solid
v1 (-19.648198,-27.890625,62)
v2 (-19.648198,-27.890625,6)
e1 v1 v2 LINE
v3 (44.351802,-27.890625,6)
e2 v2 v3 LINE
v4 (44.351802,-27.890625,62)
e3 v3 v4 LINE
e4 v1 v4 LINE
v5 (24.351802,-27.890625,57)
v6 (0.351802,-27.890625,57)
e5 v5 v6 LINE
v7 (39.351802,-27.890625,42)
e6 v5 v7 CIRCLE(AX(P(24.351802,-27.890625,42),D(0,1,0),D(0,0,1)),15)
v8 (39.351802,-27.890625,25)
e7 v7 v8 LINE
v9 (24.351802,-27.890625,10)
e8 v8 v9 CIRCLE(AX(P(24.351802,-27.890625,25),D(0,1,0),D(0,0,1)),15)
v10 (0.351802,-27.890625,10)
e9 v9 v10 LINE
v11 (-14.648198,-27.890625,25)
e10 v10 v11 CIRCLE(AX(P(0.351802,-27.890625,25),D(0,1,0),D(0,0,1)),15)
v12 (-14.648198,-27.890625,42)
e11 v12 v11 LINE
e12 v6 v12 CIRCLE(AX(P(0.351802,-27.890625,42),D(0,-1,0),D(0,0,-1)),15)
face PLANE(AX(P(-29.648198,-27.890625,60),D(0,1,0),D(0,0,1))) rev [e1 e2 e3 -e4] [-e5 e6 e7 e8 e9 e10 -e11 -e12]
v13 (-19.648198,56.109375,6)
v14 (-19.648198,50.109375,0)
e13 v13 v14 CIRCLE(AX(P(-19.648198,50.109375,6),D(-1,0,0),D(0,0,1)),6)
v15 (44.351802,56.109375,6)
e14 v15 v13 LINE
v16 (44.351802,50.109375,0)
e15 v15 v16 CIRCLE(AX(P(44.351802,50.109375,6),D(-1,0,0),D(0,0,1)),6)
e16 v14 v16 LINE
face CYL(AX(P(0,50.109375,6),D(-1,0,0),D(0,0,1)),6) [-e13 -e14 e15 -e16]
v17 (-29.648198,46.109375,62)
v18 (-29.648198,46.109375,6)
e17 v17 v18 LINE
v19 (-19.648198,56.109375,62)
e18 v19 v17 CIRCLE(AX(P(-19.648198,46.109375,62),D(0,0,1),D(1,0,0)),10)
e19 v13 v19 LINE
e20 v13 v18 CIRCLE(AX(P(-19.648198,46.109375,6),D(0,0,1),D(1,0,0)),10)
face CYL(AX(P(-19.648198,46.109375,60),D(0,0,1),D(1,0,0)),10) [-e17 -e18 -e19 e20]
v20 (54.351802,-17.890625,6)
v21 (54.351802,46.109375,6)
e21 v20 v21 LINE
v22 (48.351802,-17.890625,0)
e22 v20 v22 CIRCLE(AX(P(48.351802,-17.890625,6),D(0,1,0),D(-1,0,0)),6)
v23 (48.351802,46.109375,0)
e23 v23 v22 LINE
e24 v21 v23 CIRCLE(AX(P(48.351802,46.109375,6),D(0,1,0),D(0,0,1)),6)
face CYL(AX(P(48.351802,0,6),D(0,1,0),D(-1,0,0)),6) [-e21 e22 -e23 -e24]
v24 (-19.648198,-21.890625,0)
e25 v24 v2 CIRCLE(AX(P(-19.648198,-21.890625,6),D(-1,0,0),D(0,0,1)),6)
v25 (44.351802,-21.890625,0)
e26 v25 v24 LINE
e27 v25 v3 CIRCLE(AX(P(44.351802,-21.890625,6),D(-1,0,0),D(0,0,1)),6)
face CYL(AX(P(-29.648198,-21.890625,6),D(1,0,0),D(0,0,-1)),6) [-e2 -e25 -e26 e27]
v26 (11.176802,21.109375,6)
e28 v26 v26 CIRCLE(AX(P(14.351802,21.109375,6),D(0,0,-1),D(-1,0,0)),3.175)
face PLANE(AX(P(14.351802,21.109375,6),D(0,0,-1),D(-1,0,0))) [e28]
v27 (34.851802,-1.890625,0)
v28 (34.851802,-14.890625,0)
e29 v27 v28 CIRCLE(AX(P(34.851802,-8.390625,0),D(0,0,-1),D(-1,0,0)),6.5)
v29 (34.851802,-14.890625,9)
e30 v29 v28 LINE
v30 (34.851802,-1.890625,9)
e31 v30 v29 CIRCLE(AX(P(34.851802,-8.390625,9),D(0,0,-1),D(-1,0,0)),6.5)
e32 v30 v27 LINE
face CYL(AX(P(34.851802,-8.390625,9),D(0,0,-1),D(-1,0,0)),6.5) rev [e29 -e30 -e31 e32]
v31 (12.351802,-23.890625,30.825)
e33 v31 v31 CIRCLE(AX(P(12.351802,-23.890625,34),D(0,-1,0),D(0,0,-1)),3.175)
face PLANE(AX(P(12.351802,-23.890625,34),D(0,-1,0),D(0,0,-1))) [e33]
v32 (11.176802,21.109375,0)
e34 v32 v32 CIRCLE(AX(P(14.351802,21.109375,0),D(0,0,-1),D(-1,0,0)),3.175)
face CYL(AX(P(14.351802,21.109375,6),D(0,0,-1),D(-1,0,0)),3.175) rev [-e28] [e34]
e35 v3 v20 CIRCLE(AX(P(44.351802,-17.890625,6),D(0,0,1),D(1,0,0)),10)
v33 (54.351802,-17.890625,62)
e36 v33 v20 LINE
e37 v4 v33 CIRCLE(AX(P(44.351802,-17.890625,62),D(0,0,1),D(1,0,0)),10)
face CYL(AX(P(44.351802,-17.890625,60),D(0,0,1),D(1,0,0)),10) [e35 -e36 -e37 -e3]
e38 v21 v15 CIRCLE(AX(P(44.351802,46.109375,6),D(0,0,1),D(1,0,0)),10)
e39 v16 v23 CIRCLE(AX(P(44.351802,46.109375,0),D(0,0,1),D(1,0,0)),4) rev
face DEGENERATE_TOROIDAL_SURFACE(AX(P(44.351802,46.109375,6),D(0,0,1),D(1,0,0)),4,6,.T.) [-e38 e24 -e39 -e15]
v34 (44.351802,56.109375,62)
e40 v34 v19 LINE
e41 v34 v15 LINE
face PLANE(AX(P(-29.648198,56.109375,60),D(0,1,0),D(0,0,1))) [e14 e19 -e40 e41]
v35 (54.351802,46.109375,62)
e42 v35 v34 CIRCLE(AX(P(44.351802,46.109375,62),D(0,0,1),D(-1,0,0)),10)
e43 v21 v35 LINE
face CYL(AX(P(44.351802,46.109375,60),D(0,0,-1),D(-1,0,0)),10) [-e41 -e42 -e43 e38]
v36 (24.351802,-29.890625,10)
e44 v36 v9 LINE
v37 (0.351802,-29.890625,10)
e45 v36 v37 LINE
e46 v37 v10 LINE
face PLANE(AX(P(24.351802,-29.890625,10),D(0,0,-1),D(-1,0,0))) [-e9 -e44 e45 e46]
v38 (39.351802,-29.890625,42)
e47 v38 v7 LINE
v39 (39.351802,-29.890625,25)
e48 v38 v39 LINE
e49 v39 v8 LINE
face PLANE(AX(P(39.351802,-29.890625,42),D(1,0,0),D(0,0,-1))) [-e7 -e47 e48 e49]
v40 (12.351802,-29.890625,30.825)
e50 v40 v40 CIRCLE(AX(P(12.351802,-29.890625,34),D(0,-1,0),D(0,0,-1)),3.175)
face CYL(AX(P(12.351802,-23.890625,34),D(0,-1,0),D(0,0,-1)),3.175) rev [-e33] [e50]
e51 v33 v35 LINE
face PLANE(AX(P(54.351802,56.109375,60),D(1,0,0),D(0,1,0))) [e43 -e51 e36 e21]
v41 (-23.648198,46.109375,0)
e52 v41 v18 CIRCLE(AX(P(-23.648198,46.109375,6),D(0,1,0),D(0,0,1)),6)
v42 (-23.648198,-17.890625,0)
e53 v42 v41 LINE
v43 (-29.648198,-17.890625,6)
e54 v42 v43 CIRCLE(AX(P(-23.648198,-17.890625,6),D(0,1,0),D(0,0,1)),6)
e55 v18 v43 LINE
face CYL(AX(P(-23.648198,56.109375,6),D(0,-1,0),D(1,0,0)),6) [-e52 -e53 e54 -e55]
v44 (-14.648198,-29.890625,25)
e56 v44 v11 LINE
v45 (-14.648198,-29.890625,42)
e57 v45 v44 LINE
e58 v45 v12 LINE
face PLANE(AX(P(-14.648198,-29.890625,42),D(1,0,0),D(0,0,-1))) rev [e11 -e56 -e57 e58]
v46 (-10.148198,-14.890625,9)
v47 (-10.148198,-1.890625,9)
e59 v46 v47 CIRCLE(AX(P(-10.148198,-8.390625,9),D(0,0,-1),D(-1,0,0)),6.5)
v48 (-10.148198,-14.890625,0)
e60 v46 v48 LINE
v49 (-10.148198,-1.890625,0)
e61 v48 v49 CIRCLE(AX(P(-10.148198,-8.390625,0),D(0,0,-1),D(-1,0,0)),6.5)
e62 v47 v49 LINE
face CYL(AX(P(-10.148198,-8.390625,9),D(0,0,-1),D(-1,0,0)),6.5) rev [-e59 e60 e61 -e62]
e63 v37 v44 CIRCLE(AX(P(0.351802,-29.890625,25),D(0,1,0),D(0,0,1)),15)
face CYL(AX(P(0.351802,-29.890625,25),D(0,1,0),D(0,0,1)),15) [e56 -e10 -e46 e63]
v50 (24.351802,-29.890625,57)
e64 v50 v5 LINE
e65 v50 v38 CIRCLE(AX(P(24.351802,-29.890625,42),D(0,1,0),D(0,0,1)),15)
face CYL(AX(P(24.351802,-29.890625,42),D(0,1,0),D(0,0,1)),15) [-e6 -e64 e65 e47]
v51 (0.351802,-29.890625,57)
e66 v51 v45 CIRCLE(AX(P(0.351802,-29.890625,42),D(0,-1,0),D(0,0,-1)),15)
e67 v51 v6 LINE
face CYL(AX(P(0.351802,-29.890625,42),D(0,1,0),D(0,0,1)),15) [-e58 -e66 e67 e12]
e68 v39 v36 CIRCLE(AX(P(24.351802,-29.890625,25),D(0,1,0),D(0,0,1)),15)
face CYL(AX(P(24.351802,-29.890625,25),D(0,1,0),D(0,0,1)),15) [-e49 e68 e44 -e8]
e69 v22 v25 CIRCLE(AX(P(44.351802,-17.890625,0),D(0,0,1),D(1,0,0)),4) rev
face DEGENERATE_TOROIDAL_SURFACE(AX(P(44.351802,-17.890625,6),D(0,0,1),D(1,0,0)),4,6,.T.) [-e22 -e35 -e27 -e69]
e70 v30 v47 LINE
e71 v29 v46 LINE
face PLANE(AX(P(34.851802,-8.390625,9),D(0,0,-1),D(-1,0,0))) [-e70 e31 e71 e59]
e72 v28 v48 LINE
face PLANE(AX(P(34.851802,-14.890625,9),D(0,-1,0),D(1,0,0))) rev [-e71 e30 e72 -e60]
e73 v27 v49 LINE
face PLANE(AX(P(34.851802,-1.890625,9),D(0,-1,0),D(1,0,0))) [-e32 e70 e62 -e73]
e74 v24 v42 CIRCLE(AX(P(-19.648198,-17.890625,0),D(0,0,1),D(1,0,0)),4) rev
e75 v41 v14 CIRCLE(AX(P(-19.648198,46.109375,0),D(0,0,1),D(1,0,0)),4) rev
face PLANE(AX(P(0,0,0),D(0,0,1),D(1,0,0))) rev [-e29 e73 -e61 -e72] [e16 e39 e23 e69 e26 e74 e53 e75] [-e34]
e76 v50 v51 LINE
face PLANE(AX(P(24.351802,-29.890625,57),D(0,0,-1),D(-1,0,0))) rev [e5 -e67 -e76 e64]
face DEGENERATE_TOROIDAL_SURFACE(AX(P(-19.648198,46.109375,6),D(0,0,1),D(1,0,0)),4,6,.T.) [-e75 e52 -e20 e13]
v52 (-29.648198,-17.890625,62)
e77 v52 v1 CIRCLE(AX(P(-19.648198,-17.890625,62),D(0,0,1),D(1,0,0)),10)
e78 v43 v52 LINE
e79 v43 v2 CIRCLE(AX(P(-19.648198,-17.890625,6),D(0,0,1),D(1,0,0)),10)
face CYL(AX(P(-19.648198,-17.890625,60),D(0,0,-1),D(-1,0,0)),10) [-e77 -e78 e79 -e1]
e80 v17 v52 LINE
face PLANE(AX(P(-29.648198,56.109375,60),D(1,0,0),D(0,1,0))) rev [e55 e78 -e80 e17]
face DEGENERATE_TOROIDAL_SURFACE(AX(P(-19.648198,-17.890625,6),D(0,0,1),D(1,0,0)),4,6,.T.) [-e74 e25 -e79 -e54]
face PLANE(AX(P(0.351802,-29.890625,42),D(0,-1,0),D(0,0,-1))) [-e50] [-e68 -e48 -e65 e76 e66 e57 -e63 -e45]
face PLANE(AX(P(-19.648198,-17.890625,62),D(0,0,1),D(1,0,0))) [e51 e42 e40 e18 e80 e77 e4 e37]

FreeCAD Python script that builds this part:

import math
import FreeCAD as App
import Part
import Sketcher
from FreeCAD import Vector
Q = App.Units.Quantity


def edges_at(feature, points):
    """Names of the edges that pass closest to the given points."""
    edges = feature.Shape.Edges
    near = lambda p: min(range(len(edges)), key=lambda i: edges[i].distToShape(Part.Vertex(*p))[0])
    return sorted({f"Edge{near(p) + 1}" for p in points})

doc = App.newDocument("Part")
params = doc.addObject("Spreadsheet::Sheet", "Params")
for row, (alias, value) in enumerate([
    ("sketch1_width", "84 mm"),
    ("pad1_length", "60 mm"),
    ("fillet_radius", "10 mm"),
    ("fillet2_radius", "6 mm"),
    ("sketch2_radius", "15 mm"),
    ("sketch2_width", "24 mm"),
    ("sketch2_height", "17 mm"),
    ("pad2_length", "2 mm"),
    ("sketch3_diameter", "6.35 mm"),
    ("pocket1_length", "6 mm"),
    ("sketch4_radius", "6.5 mm"),
    ("sketch4_width", "45 mm"),
    ("pocket2_length", "9 mm"),
    ("sketch5_diameter", "6.35 mm"),
    ("pocket3_length", "6 mm"),
    ("sketch6_radius", "10 mm"),
    ("sketch6_width", "64 mm"),
    ("pad3_length", "2 mm"),
], start=1):
    params.set(f"A{row}", alias)
    params.set(f"B{row}", "=" + value)
    params.setAlias(f"B{row}", alias)

body = doc.addObject("PartDesign::Body", "Body")

# Sketch on XY plane
sketch1 = body.newObject("Sketcher::SketchObject", "Sketch")
sketch1.AttachmentSupport = (doc.getObject("XY_Plane"), [""])
sketch1.MapMode = "FlatFace"
sketch1.addGeometry([
    Part.LineSegment(Vector(-30, 56, 0), Vector(-30, -28, 0)),
    Part.LineSegment(Vector(-30, -28, 0), Vector(54, -28, 0)),
    Part.LineSegment(Vector(54, -28, 0), Vector(54, 56, 0)),
    Part.LineSegment(Vector(54, 56, 0), Vector(-30, 56, 0)),
], False)
sketch1.addConstraint([
    Sketcher.Constraint("Coincident", 0, 2, 1, 1),
    Sketcher.Constraint("Coincident", 1, 2, 2, 1),
    Sketcher.Constraint("Coincident", 2, 2, 3, 1),
    Sketcher.Constraint("Coincident", 3, 2, 0, 1),
    Sketcher.Constraint("Vertical", 0),
    Sketcher.Constraint("Horizontal", 1),
    Sketcher.Constraint("Vertical", 2),
    Sketcher.Constraint("Horizontal", 3),
    Sketcher.Constraint("Equal", 3, 0),
    Sketcher.Constraint("DistanceX", 1, 1, 1, 2, Q("84 mm")),
    Sketcher.Constraint("DistanceX", 0, 2, -1, 1, Q("29.648198 mm")),
    Sketcher.Constraint("DistanceY", 0, 2, -1, 1, Q("27.890625 mm")),
])
sketch1.setExpression("Constraints[9]", "Params.sketch1_width")
pad1 = body.newObject("PartDesign::Pad", "Pad")
pad1.Profile = sketch1
pad1.setExpression("Length", "Params.pad1_length")
doc.recompute()

fillet = body.newObject("PartDesign::Fillet", "Fillet")
fillet.Base = (pad1, edges_at(pad1, [
    (-29.648, 56.109, 30),
    (54.352, 56.109, 30),
    (54.352, -27.891, 30),
    (-29.648, -27.891, 30),
]))
fillet.setExpression("Radius", "Params.fillet_radius")
doc.recompute()

fillet2 = body.newObject("PartDesign::Fillet", "Fillet001")
fillet2.Base = (fillet, edges_at(fillet, [
    (12.352, -27.891, 0),
    (-29.648, 14.109, 0),
    (12.352, 56.109, 0),
    (54.352, 14.109, 0),
    (51.423, 53.18, 0),
    (-26.719, 53.18, 0),
    (51.423, -24.962, 0),
    (-26.719, -24.962, 0),
]))
fillet2.setExpression("Radius", "Params.fillet2_radius")

# Sketch on XZ plane
sketch2 = body.newObject("Sketcher::SketchObject", "Sketch001")
sketch2.AttachmentSupport = (doc.getObject("XZ_Plane"), [""])
sketch2.MapMode = "FlatFace"
sketch2.AttachmentOffset = App.Placement(Vector(0, 0, 27.890625), App.Rotation())
sketch2.addGeometry([
    Part.LineSegment(Vector(24, 57, 0), Vector(0, 57, 0)),  # 0
    Part.ArcOfCircle(Part.Circle(Vector(0, 42, 0), Vector(0, 0, 1), 15), math.radians(90), math.radians(180)),  # 1
    Part.LineSegment(Vector(-15, 42, 0), Vector(-15, 25, 0)),  # 2
    Part.ArcOfCircle(Part.Circle(Vector(0, 25, 0), Vector(0, 0, 1), 15), math.radians(180), math.radians(270)),  # 3
    Part.LineSegment(Vector(0, 10, 0), Vector(24, 10, 0)),  # 4
    Part.ArcOfCircle(Part.Circle(Vector(24, 25, 0), Vector(0, 0, 1), 15), math.radians(-90), math.radians(0)),  # 5
    Part.LineSegment(Vector(39, 25, 0), Vector(39, 42, 0)),  # 6
    Part.ArcOfCircle(Part.Circle(Vector(24, 42, 0), Vector(0, 0, 1), 15), math.radians(0), math.radians(90)),  # 7
], False)
sketch2.addConstraint([
    Sketcher.Constraint("Tangent", 0, 2, 1, 1),
    Sketcher.Constraint("Tangent", 1, 2, 2, 1),
    Sketcher.Constraint("Tangent", 2, 2, 3, 1),
    Sketcher.Constraint("Tangent", 3, 2, 4, 1),
    Sketcher.Constraint("Tangent", 4, 2, 5, 1),
    Sketcher.Constraint("Tangent", 5, 2, 6, 1),
    Sketcher.Constraint("Tangent", 6, 2, 7, 1),
    Sketcher.Constraint("Tangent", 7, 2, 0, 1),
    Sketcher.Constraint("Horizontal", 0),
    Sketcher.Constraint("Vertical", 2),
    Sketcher.Constraint("Horizontal", 4),
    Sketcher.Constraint("Vertical", 6),
    Sketcher.Constraint("Equal", 1, 3),
    Sketcher.Constraint("Equal", 3, 5),
    Sketcher.Constraint("Equal", 5, 7),
    Sketcher.Constraint("Radius", 1, Q("15 mm")),
    Sketcher.Constraint("DistanceX", 0, 2, 0, 1, Q("24 mm")),
    Sketcher.Constraint("DistanceY", 2, 2, 2, 1, Q("17 mm")),
    Sketcher.Constraint("DistanceY", -1, 1, 1, 3, Q("42 mm")),
    Sketcher.Constraint("DistanceX", -1, 1, 1, 3, Q("0.351802 mm")),
])
sketch2.setExpression("Constraints[15]", "Params.sketch2_radius")
sketch2.setExpression("Constraints[16]", "Params.sketch2_width")
sketch2.setExpression("Constraints[17]", "Params.sketch2_height")
pad2 = body.newObject("PartDesign::Pad", "Pad001")
pad2.Profile = sketch2
pad2.setExpression("Length", "Params.pad2_length")

# Sketch on XZ plane
sketch3 = body.newObject("Sketcher::SketchObject", "Sketch002")
sketch3.AttachmentSupport = (doc.getObject("XZ_Plane"), [""])
sketch3.MapMode = "FlatFace"
sketch3.AttachmentOffset = App.Placement(Vector(0, 0, 29.890625), App.Rotation())
sketch3.addGeometry(Part.Circle(Vector(12.4, 34, 0), Vector(0, 0, 1), 3.2), False)
sketch3.addConstraint([
    Sketcher.Constraint("Diameter", 0, Q("6.35 mm")),
    Sketcher.Constraint("DistanceY", -1, 1, 0, 3, Q("34 mm")),
    Sketcher.Constraint("DistanceX", -1, 1, 0, 3, Q("12.351802 mm")),
])
sketch3.setExpression("Constraints[0]", "Params.sketch3_diameter")
pocket1 = body.newObject("PartDesign::Pocket", "Pocket")
pocket1.Profile = sketch3
pocket1.setExpression("Length", "Params.pocket1_length")

# Sketch on XY plane
sketch4 = body.newObject("Sketcher::SketchObject", "Sketch003")
sketch4.AttachmentSupport = (doc.getObject("XY_Plane"), [""])
sketch4.MapMode = "FlatFace"
sketch4.addGeometry([
    Part.LineSegment(Vector(-10, -2, 0), Vector(35, -2, 0)),
    Part.ArcOfCircle(Part.Circle(Vector(35, -8, 0), Vector(0, 0, 1), 6), math.radians(-90), math.radians(90)),
    Part.LineSegment(Vector(35, -15, 0), Vector(-10, -15, 0)),
    Part.ArcOfCircle(Part.Circle(Vector(-10, -8, 0), Vector(0, 0, 1), 6), math.radians(90), math.radians(270)),
], False)
sketch4.addConstraint([
    Sketcher.Constraint("Tangent", 0, 2, 1, 2),
    Sketcher.Constraint("Tangent", 1, 1, 2, 1),
    Sketcher.Constraint("Tangent", 2, 2, 3, 2),
    Sketcher.Constraint("Tangent", 3, 1, 0, 1),
    Sketcher.Constraint("Horizontal", 0),
    Sketcher.Constraint("Horizontal", 2),
    Sketcher.Constraint("Radius", 1, Q("6.5 mm")),
    Sketcher.Constraint("DistanceX", 0, 1, 0, 2, Q("45 mm")),
    Sketcher.Constraint("DistanceX", -1, 1, 1, 3, Q("34.851802 mm")),
    Sketcher.Constraint("DistanceY", 1, 3, -1, 1, Q("8.390625 mm")),
])
sketch4.setExpression("Constraints[6]", "Params.sketch4_radius")
sketch4.setExpression("Constraints[7]", "Params.sketch4_width")
pocket2 = body.newObject("PartDesign::Pocket", "Pocket001")
pocket2.Profile = sketch4
pocket2.setExpression("Length", "Params.pocket2_length")
pocket2.Reversed = True

# Sketch on XY plane
sketch5 = body.newObject("Sketcher::SketchObject", "Sketch004")
sketch5.AttachmentSupport = (doc.getObject("XY_Plane"), [""])
sketch5.MapMode = "FlatFace"
sketch5.addGeometry(Part.Circle(Vector(14.4, 21.1, 0), Vector(0, 0, 1), 3.2), False)
sketch5.addConstraint([
    Sketcher.Constraint("Diameter", 0, Q("6.35 mm")),
    Sketcher.Constraint("DistanceX", -1, 1, 0, 3, Q("14.351802 mm")),
    Sketcher.Constraint("DistanceY", -1, 1, 0, 3, Q("21.109375 mm")),
])
sketch5.setExpression("Constraints[0]", "Params.sketch5_diameter")
pocket3 = body.newObject("PartDesign::Pocket", "Pocket002")
pocket3.Profile = sketch5
pocket3.setExpression("Length", "Params.pocket3_length")
pocket3.Reversed = True

# Sketch on XY plane
sketch6 = body.newObject("Sketcher::SketchObject", "Sketch005")
sketch6.AttachmentSupport = (doc.getObject("XY_Plane"), [""])
sketch6.MapMode = "FlatFace"
sketch6.AttachmentOffset = App.Placement(Vector(0, 0, 62), App.Rotation())
sketch6.addGeometry([
    Part.LineSegment(Vector(44, 56, 0), Vector(-20, 56, 0)),  # 0
    Part.ArcOfCircle(Part.Circle(Vector(-20, 46, 0), Vector(0, 0, 1), 10), math.radians(90), math.radians(180)),  # 1
    Part.LineSegment(Vector(-30, 46, 0), Vector(-30, -18, 0)),  # 2
    Part.ArcOfCircle(Part.Circle(Vector(-20, -18, 0), Vector(0, 0, 1), 10), math.radians(180), math.radians(270)),  # 3
    Part.LineSegment(Vector(-20, -28, 0), Vector(44, -28, 0)),  # 4
    Part.ArcOfCircle(Part.Circle(Vector(44, -18, 0), Vector(0, 0, 1), 10), math.radians(-90), math.radians(0)),  # 5
    Part.LineSegment(Vector(54, -18, 0), Vector(54, 46, 0)),  # 6
    Part.ArcOfCircle(Part.Circle(Vector(44, 46, 0), Vector(0, 0, 1), 10), math.radians(0), math.radians(90)),  # 7
], False)
sketch6.addConstraint([
    Sketcher.Constraint("Tangent", 0, 2, 1, 1),
    Sketcher.Constraint("Tangent", 1, 2, 2, 1),
    Sketcher.Constraint("Tangent", 2, 2, 3, 1),
    Sketcher.Constraint("Tangent", 3, 2, 4, 1),
    Sketcher.Constraint("Tangent", 4, 2, 5, 1),
    Sketcher.Constraint("Tangent", 5, 2, 6, 1),
    Sketcher.Constraint("Tangent", 6, 2, 7, 1),
    Sketcher.Constraint("Tangent", 7, 2, 0, 1),
    Sketcher.Constraint("Horizontal", 0),
    Sketcher.Constraint("Vertical", 2),
    Sketcher.Constraint("Horizontal", 4),
    Sketcher.Constraint("Vertical", 6),
    Sketcher.Constraint("Equal", 1, 3),
    Sketcher.Constraint("Equal", 3, 5),
    Sketcher.Constraint("Equal", 5, 7),
    Sketcher.Constraint("Equal", 4, 2),
    Sketcher.Constraint("Radius", 1, Q("10 mm")),
    Sketcher.Constraint("DistanceX", 0, 2, 0, 1, Q("64 mm")),
    Sketcher.Constraint("DistanceX", 1, 3, -1, 1, Q("19.648198 mm")),
    Sketcher.Constraint("DistanceY", -1, 1, 1, 3, Q("46.109375 mm")),
])
sketch6.setExpression("Constraints[16]", "Params.sketch6_radius")
sketch6.setExpression("Constraints[17]", "Params.sketch6_width")
pad3 = body.newObject("PartDesign::Pad", "Pad002")
pad3.Profile = sketch6
pad3.setExpression("Length", "Params.pad3_length")
pad3.Reversed = True

doc.recompute()
